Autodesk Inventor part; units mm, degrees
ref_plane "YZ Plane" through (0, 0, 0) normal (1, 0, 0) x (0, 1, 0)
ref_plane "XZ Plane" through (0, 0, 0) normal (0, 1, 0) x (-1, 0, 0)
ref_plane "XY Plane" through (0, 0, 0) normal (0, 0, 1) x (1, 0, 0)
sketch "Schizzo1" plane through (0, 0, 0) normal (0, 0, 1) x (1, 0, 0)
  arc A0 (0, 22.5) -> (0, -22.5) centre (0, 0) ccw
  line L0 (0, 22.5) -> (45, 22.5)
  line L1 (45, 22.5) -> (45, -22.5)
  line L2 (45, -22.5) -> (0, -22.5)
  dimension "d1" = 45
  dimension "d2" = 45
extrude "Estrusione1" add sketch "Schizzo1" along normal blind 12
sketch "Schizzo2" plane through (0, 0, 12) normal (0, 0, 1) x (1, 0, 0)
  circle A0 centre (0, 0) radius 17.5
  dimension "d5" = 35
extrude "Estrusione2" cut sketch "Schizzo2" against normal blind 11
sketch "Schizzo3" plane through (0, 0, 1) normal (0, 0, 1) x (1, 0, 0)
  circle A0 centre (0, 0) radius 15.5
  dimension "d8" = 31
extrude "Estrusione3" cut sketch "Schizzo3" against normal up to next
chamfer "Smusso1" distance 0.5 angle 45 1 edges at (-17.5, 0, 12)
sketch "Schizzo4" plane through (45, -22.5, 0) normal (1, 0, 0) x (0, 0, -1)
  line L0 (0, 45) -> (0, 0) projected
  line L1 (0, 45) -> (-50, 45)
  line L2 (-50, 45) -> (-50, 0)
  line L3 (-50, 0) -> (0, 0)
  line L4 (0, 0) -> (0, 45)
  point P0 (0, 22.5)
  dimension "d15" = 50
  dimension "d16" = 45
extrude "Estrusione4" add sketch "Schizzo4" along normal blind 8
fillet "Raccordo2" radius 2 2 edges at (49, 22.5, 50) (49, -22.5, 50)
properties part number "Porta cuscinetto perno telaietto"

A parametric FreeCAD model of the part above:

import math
import FreeCAD as App
import Part
import Sketcher

V = App.Vector
Q = App.Units.Quantity


def edges_at(feature, points):
    """Names of the edges that pass closest to the given points."""
    edges = feature.Shape.Edges
    near = lambda p: min(range(len(edges)), key=lambda i: edges[i].distToShape(Part.Vertex(*p))[0])
    return sorted({f"Edge{near(p) + 1}" for p in points})

doc = App.newDocument("Part")
body = doc.addObject("PartDesign::Body", "Body")

# Sketch on XY plane
sketch1 = body.newObject("Sketcher::SketchObject", "Sketch")
sketch1.AttachmentSupport = (doc.getObject("XY_Plane"), [""])
sketch1.MapMode = "FlatFace"
sketch1.addGeometry([
    Part.LineSegment(V(45, 22, 0), V(0, 22, 0)),
    Part.ArcOfCircle(Part.Circle(V(0, 0, 0), V(0, 0, 1), 22), math.radians(90), math.radians(270)),
    Part.LineSegment(V(0, -22, 0), V(45, -22, 0)),
    Part.LineSegment(V(45, -22, 0), V(45, 22, 0)),
], False)
sketch1.addConstraint([
    Sketcher.Constraint("Tangent", 0, 2, 1, 1),
    Sketcher.Constraint("Tangent", 1, 2, 2, 1),
    Sketcher.Constraint("Coincident", 2, 2, 3, 1),
    Sketcher.Constraint("Coincident", 3, 2, 0, 1),
    Sketcher.Constraint("Horizontal", 0),
    Sketcher.Constraint("Horizontal", 2),
    Sketcher.Constraint("Vertical", 3),
    Sketcher.Constraint("Coincident", 1, 3, -1, 1),
    Sketcher.Constraint("Equal", 2, 3),
    Sketcher.Constraint("Radius", 1, Q("22.5 mm")),
])
pad1 = body.newObject("PartDesign::Pad", "Pad")
pad1.Profile = sketch1
pad1.Length = 12

# Sketch on XY plane
sketch2 = body.newObject("Sketcher::SketchObject", "Sketch001")
sketch2.AttachmentSupport = (doc.getObject("XY_Plane"), [""])
sketch2.MapMode = "FlatFace"
sketch2.AttachmentOffset = App.Placement(V(0, 0, 12), App.Rotation())
sketch2.addGeometry(Part.Circle(V(0, 0, 0), V(0, 0, 1), 18), False)
sketch2.addConstraint([
    Sketcher.Constraint("Coincident", 0, 3, -1, 1),
    Sketcher.Constraint("Diameter", 0, Q("35 mm")),
])
pocket1 = body.newObject("PartDesign::Pocket", "Pocket")
pocket1.Profile = sketch2
pocket1.Length = 11

# Sketch on XY plane
sketch3 = body.newObject("Sketcher::SketchObject", "Sketch002")
sketch3.AttachmentSupport = (doc.getObject("XY_Plane"), [""])
sketch3.MapMode = "FlatFace"
sketch3.AttachmentOffset = App.Placement(V(0, 0, 1), App.Rotation())
sketch3.addGeometry(Part.Circle(V(0, 0, 0), V(0, 0, 1), 16), False)
sketch3.addConstraint([
    Sketcher.Constraint("Coincident", 0, 3, -1, 1),
    Sketcher.Constraint("Diameter", 0, Q("31 mm")),
])
pocket2 = body.newObject("PartDesign::Pocket", "Pocket001")
pocket2.Profile = sketch3
pocket2.Type = "UpToFirst"
doc.recompute()

chamfer = body.newObject("PartDesign::Chamfer", "Chamfer")
chamfer.Base = (pocket2, edges_at(pocket2, [(-17.5, 0, 12)]))
chamfer.Size = 0.5

# Sketch on YZ plane
sketch4 = body.newObject("Sketcher::SketchObject", "Sketch003")
sketch4.AttachmentSupport = (doc.getObject("YZ_Plane"), [""])
sketch4.MapMode = "FlatFace"
sketch4.AttachmentOffset = App.Placement(V(0, 0, 45), App.Rotation())
sketch4.addGeometry([
    Part.LineSegment(V(-22, 0, 0), V(22, 0, 0)),
    Part.LineSegment(V(22, 0, 0), V(22, 50, 0)),
    Part.LineSegment(V(22, 50, 0), V(-22, 50, 0)),
    Part.LineSegment(V(-22, 50, 0), V(-22, 0, 0)),
], False)
sketch4.addConstraint([
    Sketcher.Constraint("Coincident", 0, 2, 1, 1),
    Sketcher.Constraint("Coincident", 1, 2, 2, 1),
    Sketcher.Constraint("Coincident", 2, 2, 3, 1),
    Sketcher.Constraint("Coincident", 3, 2, 0, 1),
    Sketcher.Constraint("Horizontal", 0),
    Sketcher.Constraint("Vertical", 1),
    Sketcher.Constraint("Horizontal", 2),
    Sketcher.Constraint("Vertical", 3),
    Sketcher.Constraint("Symmetric", 0, 2, 3, 2, -1, 1),
    Sketcher.Constraint("DistanceX", 0, 1, 0, 2, Q("45 mm")),
    Sketcher.Constraint("DistanceY", 1, 1, 1, 2, Q("50 mm")),
])
pad2 = body.newObject("PartDesign::Pad", "Pad001")
pad2.Profile = sketch4
pad2.Length = 8
doc.recompute()

fillet = body.newObject("PartDesign::Fillet", "Fillet")
fillet.Base = (pad2, edges_at(pad2, [(49, 22.5, 50), (49, -22.5, 50)]))
fillet.Radius = 2

doc.recompute()
